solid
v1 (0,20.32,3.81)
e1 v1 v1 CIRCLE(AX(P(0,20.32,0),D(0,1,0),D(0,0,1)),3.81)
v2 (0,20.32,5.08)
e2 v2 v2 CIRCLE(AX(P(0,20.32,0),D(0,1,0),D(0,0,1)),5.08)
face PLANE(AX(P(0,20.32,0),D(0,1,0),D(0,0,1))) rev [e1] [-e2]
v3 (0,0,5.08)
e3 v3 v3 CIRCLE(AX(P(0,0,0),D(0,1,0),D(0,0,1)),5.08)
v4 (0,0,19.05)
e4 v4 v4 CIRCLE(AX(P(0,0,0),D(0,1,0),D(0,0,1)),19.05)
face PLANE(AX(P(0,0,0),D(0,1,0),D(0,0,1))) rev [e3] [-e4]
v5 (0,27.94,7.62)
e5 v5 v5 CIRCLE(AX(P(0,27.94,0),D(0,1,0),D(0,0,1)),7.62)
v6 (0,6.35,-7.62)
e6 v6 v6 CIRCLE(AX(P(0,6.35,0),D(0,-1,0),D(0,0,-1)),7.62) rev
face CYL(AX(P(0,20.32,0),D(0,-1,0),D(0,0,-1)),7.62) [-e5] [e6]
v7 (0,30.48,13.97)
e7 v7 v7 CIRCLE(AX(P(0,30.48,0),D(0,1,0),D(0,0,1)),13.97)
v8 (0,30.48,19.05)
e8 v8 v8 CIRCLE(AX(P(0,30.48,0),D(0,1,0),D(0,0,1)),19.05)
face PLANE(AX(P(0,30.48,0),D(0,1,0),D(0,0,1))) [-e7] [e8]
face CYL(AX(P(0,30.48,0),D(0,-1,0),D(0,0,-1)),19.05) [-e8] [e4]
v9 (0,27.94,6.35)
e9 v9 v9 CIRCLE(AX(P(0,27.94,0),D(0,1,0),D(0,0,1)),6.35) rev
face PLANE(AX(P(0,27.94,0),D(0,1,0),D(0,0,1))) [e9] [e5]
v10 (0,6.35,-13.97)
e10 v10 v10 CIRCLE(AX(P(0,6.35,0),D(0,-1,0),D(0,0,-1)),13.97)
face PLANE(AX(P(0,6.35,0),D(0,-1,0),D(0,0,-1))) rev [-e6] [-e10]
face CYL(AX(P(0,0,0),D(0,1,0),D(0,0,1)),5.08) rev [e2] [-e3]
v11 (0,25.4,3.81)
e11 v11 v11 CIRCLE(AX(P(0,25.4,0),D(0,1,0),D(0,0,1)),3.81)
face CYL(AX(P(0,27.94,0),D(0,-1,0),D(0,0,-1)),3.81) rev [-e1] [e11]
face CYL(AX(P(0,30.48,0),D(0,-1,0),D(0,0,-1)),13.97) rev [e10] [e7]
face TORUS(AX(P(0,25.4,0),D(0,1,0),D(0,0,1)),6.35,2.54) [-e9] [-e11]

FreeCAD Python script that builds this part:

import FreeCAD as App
import Part
import Sketcher
Q = App.Units.Quantity


def edges_at(feature, points):
    """Names of the edges that pass closest to the given points."""
    edges = feature.Shape.Edges
    near = lambda p: min(range(len(edges)), key=lambda i: edges[i].distToShape(Part.Vertex(*p))[0])
    return sorted({f"Edge{near(p) + 1}" for p in points})

doc = App.newDocument("Part")
body = doc.addObject("PartDesign::Body", "Body")

# Sketch on XZ plane
sketch1 = doc.addObject("Sketcher::SketchObject", "Sketch")
body.addObject(sketch1)
sketch1.AttachmentSupport = (doc.XZ_Plane, [""])
sketch1.MapMode = "FlatFace"
sketch1.addGeometry(Part.Circle(App.Vector(0, 0, 0), App.Vector(0, 0, 1), 19), False)
sketch1.addGeometry(Part.Circle(App.Vector(0, 0, 0), App.Vector(0, 0, 1), 14), False)
sketch1.addConstraint(Sketcher.Constraint("Coincident", 0, 3, -1, 1))
sketch1.addConstraint(Sketcher.Constraint("Coincident", 1, 3, -1, 1))
sketch1.addConstraint(Sketcher.Constraint("Diameter", 0, Q("1.5 in")))
sketch1.addConstraint(Sketcher.Constraint("Diameter", 1, Q("1.1 in")))
pad1 = doc.addObject("PartDesign::Pad", "Pad")
body.addObject(pad1)
pad1.Profile = sketch1
pad1.Length = Q("1.2 in")
pad1.Reversed = True

# Sketch on XZ plane
sketch2 = doc.addObject("Sketcher::SketchObject", "Sketch001")
body.addObject(sketch2)
sketch2.AttachmentSupport = (doc.XZ_Plane, [""])
sketch2.MapMode = "FlatFace"
sketch2.addGeometry(Part.Circle(App.Vector(0, 0, 0), App.Vector(0, 0, 1), 14), False)
sketch2.addConstraint(Sketcher.Constraint("Coincident", 0, 3, -1, 1))
sketch2.addConstraint(Sketcher.Constraint("Diameter", 0, Q("1.1 in")))
pad2 = doc.addObject("PartDesign::Pad", "Pad001")
body.addObject(pad2)
pad2.Profile = sketch2
pad2.Length = Q("0.25 in")
pad2.Reversed = True

# Sketch on XZ plane
sketch3 = doc.addObject("Sketcher::SketchObject", "Sketch002")
body.addObject(sketch3)
sketch3.AttachmentSupport = (doc.XZ_Plane, [""])
sketch3.MapMode = "FlatFace"
sketch3.AttachmentOffset = App.Placement(App.Vector(0, 0, -0.25 * 25.4), App.Rotation())
sketch3.addGeometry(Part.Circle(App.Vector(0, 0, 0), App.Vector(0, 0, 1), 5), False)
sketch3.addConstraint(Sketcher.Constraint("Coincident", 0, 3, -1, 1))
sketch3.addConstraint(Sketcher.Constraint("Diameter", 0, Q("0.4 in")))
pocket1 = doc.addObject("PartDesign::Pocket", "Pocket")
body.addObject(pocket1)
pocket1.Profile = sketch3
pocket1.Type = "ThroughAll"
pocket1.Reversed = True

# Sketch on XZ plane
sketch4 = doc.addObject("Sketcher::SketchObject", "Sketch003")
body.addObject(sketch4)
sketch4.AttachmentSupport = (doc.XZ_Plane, [""])
sketch4.MapMode = "FlatFace"
sketch4.AttachmentOffset = App.Placement(App.Vector(0, 0, -0.25 * 25.4), App.Rotation())
sketch4.addGeometry(Part.Circle(App.Vector(0, 0, 0), App.Vector(0, 0, 1), 8), False)
sketch4.addGeometry(Part.Circle(App.Vector(0, 0, 0), App.Vector(0, 0, 1), 5), False)
sketch4.addConstraint(Sketcher.Constraint("Coincident", 0, 3, -1, 1))
sketch4.addConstraint(Sketcher.Constraint("Coincident", 1, 3, -1, 1))
sketch4.addConstraint(Sketcher.Constraint("Diameter", 0, Q("0.6 in")))
sketch4.addConstraint(Sketcher.Constraint("Diameter", 1, Q("0.4 in")))
pad3 = doc.addObject("PartDesign::Pad", "Pad002")
body.addObject(pad3)
pad3.Profile = sketch4
pad3.Length = Q("0.55 in")
pad3.Reversed = True

# Sketch on XZ plane
sketch5 = doc.addObject("Sketcher::SketchObject", "Sketch004")
body.addObject(sketch5)
sketch5.AttachmentSupport = (doc.XZ_Plane, [""])
sketch5.MapMode = "FlatFace"
sketch5.AttachmentOffset = App.Placement(App.Vector(0, 0, -0.8 * 25.4), App.Rotation())
sketch5.addGeometry(Part.Circle(App.Vector(0, 0, 0), App.Vector(0, 0, 1), 7.6), False)
sketch5.addGeometry(Part.Circle(App.Vector(0, 0, 0), App.Vector(0, 0, 1), 3.8), False)
sketch5.addConstraint(Sketcher.Constraint("Coincident", 0, 3, -1, 1))
sketch5.addConstraint(Sketcher.Constraint("Coincident", 1, 3, -1, 1))
sketch5.addConstraint(Sketcher.Constraint("Diameter", 0, Q("0.6 in")))
sketch5.addConstraint(Sketcher.Constraint("Diameter", 1, Q("0.3 in")))
pad4 = doc.addObject("PartDesign::Pad", "Pad003")
body.addObject(pad4)
pad4.Profile = sketch5
pad4.Length = Q("0.3 in")
pad4.Reversed = True
doc.recompute()

fillet = doc.addObject("PartDesign::Fillet", "Fillet")
body.addObject(fillet)
fillet.Base = (pad4, edges_at(pad4, [(-3.81, 27.94, 0)]))
fillet.Radius = Q("0.1 in")

doc.recompute()
